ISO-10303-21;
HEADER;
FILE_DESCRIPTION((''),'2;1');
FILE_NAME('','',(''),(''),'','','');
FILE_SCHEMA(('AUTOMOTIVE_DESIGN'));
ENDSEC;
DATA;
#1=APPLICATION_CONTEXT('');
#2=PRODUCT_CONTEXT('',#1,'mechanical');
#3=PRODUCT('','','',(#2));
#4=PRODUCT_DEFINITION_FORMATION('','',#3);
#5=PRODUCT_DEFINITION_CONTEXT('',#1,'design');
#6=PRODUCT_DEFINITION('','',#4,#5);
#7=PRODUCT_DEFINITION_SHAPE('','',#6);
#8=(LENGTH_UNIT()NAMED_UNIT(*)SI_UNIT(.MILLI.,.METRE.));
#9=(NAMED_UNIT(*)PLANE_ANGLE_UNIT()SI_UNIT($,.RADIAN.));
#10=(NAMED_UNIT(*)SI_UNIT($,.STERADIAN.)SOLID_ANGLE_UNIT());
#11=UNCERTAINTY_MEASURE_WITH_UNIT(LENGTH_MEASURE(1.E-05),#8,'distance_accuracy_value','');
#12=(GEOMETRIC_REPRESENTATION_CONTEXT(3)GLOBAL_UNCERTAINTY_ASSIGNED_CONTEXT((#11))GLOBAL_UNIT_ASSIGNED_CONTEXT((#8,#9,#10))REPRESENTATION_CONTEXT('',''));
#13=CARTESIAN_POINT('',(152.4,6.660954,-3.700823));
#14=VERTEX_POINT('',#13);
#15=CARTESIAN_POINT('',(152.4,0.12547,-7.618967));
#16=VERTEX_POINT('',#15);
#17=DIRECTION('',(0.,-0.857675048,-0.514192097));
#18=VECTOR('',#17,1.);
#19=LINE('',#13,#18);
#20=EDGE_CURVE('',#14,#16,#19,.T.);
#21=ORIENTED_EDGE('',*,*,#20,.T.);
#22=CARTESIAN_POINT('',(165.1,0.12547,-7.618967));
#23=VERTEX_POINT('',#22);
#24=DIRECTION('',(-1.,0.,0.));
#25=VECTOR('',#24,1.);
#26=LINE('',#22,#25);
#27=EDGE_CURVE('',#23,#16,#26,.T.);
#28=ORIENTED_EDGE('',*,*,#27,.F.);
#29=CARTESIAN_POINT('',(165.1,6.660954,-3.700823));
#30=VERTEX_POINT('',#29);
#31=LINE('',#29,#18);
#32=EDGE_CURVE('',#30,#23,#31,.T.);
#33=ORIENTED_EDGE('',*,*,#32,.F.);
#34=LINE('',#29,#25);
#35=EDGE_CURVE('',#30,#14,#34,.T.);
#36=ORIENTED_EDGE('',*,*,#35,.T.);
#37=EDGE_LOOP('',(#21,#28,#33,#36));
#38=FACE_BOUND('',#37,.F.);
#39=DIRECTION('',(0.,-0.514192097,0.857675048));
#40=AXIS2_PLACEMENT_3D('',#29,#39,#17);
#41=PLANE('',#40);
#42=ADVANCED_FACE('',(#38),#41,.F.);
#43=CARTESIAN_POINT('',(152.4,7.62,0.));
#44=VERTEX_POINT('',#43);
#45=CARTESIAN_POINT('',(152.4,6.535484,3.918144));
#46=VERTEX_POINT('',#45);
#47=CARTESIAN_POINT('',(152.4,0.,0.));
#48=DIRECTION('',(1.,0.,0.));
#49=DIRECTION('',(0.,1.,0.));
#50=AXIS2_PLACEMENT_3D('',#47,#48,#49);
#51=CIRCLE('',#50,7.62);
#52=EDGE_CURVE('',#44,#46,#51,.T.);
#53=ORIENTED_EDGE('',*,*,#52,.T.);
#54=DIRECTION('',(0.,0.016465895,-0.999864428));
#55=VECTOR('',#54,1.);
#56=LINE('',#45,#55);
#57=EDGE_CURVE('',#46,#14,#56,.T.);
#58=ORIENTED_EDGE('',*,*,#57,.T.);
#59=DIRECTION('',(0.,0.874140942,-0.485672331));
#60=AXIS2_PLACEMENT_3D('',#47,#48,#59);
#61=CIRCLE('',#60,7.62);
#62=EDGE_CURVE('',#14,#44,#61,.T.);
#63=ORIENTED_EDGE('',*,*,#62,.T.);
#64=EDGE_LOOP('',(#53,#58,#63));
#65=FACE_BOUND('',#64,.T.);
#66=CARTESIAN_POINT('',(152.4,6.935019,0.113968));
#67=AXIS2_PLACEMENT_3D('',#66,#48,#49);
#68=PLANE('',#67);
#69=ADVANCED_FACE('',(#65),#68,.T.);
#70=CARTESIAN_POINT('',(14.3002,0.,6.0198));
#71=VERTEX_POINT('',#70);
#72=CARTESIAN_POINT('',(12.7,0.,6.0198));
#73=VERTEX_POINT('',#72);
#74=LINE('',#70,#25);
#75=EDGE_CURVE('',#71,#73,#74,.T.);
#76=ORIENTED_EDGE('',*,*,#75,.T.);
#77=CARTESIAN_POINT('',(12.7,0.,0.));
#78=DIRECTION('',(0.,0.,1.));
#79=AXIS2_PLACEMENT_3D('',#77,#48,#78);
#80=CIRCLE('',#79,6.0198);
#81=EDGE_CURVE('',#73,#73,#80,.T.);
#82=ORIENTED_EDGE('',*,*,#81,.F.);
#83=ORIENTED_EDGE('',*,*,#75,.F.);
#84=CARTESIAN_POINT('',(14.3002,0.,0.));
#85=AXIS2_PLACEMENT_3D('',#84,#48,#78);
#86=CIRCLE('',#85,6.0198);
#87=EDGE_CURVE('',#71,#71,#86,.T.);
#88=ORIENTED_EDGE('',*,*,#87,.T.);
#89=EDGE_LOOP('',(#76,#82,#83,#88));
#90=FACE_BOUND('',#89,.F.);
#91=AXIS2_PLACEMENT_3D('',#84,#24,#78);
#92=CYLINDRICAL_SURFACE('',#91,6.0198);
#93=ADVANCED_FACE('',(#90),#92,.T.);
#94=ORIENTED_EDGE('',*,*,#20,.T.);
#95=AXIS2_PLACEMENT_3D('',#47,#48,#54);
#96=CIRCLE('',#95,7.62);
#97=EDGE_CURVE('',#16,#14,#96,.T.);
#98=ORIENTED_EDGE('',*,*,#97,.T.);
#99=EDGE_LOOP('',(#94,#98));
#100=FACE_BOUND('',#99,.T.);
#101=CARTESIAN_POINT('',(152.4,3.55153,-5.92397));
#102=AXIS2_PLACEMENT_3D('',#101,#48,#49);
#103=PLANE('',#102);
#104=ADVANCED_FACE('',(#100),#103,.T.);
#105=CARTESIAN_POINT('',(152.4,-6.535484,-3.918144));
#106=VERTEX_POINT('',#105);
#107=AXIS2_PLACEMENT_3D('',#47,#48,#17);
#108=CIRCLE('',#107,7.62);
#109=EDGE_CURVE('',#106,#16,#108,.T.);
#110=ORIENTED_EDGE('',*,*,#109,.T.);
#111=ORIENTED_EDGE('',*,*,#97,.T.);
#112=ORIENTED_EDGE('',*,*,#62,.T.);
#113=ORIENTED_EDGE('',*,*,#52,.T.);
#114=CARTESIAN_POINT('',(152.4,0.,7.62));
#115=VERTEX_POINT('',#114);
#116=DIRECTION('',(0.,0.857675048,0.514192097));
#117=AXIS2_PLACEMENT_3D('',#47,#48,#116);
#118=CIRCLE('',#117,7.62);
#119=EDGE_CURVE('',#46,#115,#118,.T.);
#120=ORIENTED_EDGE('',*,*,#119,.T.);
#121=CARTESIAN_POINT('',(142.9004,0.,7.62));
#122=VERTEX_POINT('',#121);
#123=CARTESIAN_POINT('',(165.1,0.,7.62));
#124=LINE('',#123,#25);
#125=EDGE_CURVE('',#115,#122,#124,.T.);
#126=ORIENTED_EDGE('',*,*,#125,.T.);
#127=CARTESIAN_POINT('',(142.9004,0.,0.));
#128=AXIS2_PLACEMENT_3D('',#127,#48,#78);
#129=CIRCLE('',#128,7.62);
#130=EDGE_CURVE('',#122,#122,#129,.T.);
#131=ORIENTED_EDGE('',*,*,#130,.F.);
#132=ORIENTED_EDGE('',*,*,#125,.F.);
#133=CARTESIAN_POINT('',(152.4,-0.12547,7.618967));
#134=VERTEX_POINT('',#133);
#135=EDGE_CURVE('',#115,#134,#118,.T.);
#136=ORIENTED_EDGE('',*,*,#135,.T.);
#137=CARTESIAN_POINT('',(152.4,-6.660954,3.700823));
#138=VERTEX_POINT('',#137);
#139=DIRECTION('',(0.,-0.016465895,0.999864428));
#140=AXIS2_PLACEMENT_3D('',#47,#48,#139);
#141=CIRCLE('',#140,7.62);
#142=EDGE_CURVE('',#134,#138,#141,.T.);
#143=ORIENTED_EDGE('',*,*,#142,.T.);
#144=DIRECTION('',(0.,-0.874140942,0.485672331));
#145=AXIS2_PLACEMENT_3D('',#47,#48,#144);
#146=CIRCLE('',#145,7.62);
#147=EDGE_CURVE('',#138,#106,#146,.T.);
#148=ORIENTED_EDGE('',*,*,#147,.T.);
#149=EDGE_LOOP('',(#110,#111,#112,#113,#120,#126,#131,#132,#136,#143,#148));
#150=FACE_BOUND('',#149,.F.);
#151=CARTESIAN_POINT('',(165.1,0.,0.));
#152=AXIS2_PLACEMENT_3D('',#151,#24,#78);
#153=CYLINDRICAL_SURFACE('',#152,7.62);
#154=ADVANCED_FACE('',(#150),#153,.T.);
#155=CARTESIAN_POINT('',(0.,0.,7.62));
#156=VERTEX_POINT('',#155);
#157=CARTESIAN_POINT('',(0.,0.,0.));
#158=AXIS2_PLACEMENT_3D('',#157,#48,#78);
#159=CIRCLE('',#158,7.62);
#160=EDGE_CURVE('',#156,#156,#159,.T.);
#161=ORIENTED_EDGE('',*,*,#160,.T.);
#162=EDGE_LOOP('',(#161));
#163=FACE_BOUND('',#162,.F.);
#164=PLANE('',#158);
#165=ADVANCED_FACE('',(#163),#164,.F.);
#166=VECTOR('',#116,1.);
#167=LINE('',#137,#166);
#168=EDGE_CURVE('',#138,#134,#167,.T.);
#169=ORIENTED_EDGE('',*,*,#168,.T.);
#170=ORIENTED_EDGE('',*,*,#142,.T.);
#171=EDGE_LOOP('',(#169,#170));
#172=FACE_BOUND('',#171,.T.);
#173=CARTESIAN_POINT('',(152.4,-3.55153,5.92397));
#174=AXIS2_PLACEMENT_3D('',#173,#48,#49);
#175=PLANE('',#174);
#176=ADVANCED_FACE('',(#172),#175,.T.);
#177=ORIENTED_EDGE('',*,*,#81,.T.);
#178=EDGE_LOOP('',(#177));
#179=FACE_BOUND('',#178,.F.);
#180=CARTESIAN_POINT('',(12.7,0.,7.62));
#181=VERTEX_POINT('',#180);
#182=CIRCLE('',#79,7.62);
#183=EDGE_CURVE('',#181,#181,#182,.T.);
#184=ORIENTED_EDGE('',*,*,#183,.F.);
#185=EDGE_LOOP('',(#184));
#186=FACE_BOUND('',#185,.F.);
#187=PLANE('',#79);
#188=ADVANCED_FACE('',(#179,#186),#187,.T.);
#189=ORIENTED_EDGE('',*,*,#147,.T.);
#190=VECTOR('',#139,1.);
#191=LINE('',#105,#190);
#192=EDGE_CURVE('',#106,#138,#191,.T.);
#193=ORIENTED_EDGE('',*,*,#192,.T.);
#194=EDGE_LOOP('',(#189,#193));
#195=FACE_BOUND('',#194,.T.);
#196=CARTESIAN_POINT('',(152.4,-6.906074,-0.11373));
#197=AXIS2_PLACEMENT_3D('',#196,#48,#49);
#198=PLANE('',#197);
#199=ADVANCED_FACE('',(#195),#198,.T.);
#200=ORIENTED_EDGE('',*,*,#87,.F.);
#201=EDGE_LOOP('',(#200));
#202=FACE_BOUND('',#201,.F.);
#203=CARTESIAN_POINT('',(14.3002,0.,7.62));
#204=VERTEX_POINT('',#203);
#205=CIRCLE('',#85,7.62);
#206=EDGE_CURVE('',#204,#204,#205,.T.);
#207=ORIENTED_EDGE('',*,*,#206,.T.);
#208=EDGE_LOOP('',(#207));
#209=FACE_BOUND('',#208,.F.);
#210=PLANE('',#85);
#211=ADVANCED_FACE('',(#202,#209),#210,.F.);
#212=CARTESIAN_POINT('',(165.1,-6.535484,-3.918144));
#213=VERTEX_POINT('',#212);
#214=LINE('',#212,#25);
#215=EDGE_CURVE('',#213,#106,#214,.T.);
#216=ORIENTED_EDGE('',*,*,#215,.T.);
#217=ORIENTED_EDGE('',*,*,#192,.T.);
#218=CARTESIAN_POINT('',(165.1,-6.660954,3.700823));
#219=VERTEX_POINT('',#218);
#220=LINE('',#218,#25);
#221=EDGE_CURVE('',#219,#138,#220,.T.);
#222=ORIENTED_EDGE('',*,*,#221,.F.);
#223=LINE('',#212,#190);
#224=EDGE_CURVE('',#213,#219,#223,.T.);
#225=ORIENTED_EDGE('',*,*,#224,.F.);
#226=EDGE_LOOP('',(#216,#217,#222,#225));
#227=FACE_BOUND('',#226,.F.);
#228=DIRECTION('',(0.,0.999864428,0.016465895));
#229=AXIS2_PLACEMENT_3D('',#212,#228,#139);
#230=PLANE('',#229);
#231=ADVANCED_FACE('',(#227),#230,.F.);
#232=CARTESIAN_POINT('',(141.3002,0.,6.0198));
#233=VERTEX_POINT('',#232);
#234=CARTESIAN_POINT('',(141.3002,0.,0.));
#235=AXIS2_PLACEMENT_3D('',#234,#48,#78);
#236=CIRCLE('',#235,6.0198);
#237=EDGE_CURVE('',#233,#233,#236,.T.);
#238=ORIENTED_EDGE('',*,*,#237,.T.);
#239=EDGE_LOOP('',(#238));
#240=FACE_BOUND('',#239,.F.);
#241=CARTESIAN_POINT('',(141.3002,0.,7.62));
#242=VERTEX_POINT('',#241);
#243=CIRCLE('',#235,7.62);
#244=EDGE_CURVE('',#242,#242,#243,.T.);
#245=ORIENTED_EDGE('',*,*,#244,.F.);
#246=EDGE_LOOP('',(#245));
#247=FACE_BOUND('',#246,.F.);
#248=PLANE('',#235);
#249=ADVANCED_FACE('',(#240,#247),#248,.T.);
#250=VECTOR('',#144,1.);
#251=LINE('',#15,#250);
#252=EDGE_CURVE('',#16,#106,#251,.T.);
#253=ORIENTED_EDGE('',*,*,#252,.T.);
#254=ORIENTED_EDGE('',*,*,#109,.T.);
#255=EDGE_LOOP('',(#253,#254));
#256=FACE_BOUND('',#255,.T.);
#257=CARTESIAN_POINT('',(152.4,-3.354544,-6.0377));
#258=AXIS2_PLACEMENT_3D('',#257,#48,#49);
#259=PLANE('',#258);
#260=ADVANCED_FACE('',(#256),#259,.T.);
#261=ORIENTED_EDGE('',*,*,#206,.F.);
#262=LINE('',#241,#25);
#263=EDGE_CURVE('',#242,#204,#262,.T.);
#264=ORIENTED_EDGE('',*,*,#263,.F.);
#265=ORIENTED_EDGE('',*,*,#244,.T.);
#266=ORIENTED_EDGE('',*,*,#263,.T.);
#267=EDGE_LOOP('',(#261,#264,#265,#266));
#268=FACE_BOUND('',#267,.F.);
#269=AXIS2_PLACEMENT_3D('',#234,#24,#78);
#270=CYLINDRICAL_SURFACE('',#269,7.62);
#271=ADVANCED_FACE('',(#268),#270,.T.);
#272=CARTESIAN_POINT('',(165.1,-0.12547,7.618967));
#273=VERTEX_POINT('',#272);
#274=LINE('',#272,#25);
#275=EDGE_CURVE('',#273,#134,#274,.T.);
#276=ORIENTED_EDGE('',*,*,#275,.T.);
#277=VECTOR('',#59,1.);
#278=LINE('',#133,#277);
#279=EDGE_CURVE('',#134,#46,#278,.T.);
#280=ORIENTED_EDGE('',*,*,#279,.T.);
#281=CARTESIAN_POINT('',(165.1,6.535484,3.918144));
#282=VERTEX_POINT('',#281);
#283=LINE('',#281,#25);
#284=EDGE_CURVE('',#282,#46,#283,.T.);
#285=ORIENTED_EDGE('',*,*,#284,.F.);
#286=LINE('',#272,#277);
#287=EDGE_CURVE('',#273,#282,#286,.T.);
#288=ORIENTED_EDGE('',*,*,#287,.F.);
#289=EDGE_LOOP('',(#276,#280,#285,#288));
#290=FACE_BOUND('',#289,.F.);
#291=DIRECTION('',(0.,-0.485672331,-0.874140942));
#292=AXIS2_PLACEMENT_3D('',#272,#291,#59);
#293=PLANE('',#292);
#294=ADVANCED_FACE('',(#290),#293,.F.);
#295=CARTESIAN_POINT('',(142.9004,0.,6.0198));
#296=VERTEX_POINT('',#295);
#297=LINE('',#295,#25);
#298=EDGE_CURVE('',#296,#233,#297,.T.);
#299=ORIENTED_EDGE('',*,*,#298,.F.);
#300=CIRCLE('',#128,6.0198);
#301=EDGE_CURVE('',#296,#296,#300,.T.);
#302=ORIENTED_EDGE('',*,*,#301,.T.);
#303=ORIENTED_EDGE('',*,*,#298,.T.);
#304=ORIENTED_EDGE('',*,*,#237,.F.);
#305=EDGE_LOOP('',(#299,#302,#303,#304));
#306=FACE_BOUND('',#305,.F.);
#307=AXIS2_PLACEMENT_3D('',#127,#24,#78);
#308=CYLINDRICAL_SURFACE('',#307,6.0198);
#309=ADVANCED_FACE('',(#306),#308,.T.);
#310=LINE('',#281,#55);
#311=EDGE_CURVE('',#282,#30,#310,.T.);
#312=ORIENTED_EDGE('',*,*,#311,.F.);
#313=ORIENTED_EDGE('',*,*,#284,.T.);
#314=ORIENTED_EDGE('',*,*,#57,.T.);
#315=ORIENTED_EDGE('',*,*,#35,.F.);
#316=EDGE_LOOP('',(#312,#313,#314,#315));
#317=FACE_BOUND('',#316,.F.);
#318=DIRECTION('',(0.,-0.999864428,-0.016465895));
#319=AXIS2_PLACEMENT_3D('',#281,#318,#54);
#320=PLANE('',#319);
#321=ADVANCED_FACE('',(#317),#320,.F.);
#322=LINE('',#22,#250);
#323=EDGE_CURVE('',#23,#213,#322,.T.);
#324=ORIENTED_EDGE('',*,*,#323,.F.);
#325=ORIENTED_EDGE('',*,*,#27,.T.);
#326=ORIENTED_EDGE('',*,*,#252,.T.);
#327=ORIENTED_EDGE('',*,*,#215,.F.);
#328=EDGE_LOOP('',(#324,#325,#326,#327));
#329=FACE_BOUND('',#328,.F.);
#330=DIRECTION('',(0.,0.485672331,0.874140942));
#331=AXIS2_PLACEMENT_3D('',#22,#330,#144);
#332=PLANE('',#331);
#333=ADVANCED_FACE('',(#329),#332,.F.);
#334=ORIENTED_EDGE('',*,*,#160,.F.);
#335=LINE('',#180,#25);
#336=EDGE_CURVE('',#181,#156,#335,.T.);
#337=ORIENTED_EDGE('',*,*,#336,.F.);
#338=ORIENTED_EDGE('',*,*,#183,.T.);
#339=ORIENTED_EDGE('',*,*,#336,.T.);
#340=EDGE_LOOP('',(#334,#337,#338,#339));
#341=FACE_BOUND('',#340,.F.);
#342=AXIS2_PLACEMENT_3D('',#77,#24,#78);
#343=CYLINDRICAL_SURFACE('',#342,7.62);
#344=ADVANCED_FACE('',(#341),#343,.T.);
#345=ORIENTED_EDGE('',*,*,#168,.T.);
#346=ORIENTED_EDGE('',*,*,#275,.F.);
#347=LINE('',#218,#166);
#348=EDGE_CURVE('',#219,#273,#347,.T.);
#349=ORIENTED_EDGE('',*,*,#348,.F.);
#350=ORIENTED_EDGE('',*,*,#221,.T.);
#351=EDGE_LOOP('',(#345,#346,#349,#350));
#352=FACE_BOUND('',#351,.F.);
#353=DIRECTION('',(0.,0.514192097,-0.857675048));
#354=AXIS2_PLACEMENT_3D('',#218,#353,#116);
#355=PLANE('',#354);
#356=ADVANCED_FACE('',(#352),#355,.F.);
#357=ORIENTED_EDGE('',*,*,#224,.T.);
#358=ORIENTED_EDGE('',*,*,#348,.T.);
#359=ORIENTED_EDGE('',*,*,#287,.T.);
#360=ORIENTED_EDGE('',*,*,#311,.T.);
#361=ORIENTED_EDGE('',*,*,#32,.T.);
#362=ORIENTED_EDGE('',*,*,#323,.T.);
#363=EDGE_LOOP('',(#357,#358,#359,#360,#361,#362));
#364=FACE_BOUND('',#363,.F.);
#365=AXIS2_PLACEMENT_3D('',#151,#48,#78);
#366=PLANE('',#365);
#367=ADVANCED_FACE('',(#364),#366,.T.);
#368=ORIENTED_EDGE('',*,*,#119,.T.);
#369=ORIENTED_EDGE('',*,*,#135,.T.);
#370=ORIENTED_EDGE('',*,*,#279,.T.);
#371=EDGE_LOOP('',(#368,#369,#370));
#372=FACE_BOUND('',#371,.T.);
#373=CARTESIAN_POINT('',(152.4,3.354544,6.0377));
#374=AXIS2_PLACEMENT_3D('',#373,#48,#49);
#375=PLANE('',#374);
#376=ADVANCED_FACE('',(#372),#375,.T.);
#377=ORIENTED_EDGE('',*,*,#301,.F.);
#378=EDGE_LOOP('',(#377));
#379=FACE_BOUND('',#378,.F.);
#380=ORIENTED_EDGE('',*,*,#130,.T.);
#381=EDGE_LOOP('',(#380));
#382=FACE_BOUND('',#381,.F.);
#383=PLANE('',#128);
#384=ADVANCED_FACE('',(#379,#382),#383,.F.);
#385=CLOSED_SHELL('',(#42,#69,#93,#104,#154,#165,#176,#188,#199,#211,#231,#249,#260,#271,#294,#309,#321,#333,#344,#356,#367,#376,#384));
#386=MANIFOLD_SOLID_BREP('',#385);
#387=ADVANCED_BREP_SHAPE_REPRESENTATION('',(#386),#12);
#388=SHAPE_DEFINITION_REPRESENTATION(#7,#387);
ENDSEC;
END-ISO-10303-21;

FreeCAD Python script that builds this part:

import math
import FreeCAD as App
import Part
import Sketcher
from FreeCAD import Vector
Q = App.Units.Quantity


def add_polygon(sketch, points):
    """Adds a closed chain of lines whose ends are joined by coincident constraints."""
    first, n = sketch.GeometryCount, len(points)
    for a, b in zip(points, points[1:] + points[:1]):
        sketch.addGeometry(Part.LineSegment(App.Vector(*a, 0), App.Vector(*b, 0)), False)
    for i in range(n):
        sketch.addConstraint(Sketcher.Constraint("Coincident", first + i, 2, first + (i + 1) % n, 1))

doc = App.newDocument("Part")
body = doc.addObject("PartDesign::Body", "Body")

# Sketch on XZ plane
sketch1 = doc.addObject("Sketcher::SketchObject", "Sketch")
body.addObject(sketch1)
sketch1.AttachmentSupport = (doc.XZ_Plane, [""])
sketch1.MapMode = "FlatFace"
add_polygon(sketch1, [(0, 7.6), (0, 0), (165.1, 0), (165.1, 7.6), (142.9, 7.6), (142.9, 6), (141.3, 6), (141.3, 7.6), (14.3, 7.6), (14.3, 6), (12.7, 6), (12.7, 7.6)])  # lines 0-11
sketch1.addConstraint([
    Sketcher.Constraint("Vertical", 0),
    Sketcher.Constraint("Horizontal", 1),
    Sketcher.Constraint("Vertical", 2),
    Sketcher.Constraint("Horizontal", 3),
    Sketcher.Constraint("Vertical", 4),
    Sketcher.Constraint("Horizontal", 5),
    Sketcher.Constraint("Vertical", 6),
    Sketcher.Constraint("Horizontal", 7),
    Sketcher.Constraint("Vertical", 8),
    Sketcher.Constraint("Horizontal", 9),
    Sketcher.Constraint("Vertical", 10),
    Sketcher.Constraint("Horizontal", 11),
    Sketcher.Constraint("Coincident", 0, 2, -1, 1),
    Sketcher.Constraint("Horizontal", 3, 2, 6, 2),
    Sketcher.Constraint("Horizontal", 5, 2, 8, 2),
    Sketcher.Constraint("Horizontal", 7, 2, 10, 2),
    Sketcher.Constraint("Equal", 5, 9),
    Sketcher.Constraint("Equal", 9, 4),
    Sketcher.Constraint("DistanceX", 7, 2, 7, 1, Q("5 in")),
    Sketcher.Constraint("DistanceX", 1, 1, 1, 2, Q("6.5 in")),
    Sketcher.Constraint("DistanceX", 11, 2, 11, 1, Q("0.5 in")),
    Sketcher.Constraint("DistanceY", 0, 2, 0, 1, Q("0.3 in")),
    Sketcher.Constraint("DistanceX", 3, 2, 3, 1, Q("0.874 in")),
])
revolution = doc.addObject("PartDesign::Revolution", "Revolution")
body.addObject(revolution)
revolution.Profile = sketch1
revolution.ReferenceAxis = (sketch1, ["H_Axis"])
revolution.Angle = 360

# Sketch on YZ plane
sketch2 = doc.addObject("Sketcher::SketchObject", "Sketch001")
body.addObject(sketch2)
sketch2.AttachmentSupport = (doc.YZ_Plane, [""])
sketch2.MapMode = "FlatFace"
sketch2.AttachmentOffset = App.Placement(Vector(0, 0, 6.5 * 25.4), App.Rotation())
sketch2.addGeometry([
    Part.LineSegment(Vector(-6.7, 3.7, 0), Vector(-0.1, 7.6, 0)),  # 0
    Part.ArcOfCircle(Part.Circle(Vector(0, 0, 0), Vector(0, 0, 1), 7.6), math.radians(91), math.radians(151)),  # 1
    Part.ArcOfCircle(Part.Circle(Vector(0, 0, 0), Vector(0, 0, 1), 7.6), math.radians(-89), math.radians(-29)),  # 2
    Part.LineSegment(Vector(6.7, -3.7, 0), Vector(0.1, -7.6, 0)),  # 3
    Part.ArcOfCircle(Part.Circle(Vector(0, 0, 0), Vector(0, 0, 1), 7.6), math.radians(-149), math.radians(-89)),  # 4
    Part.LineSegment(Vector(0.1, -7.6, 0), Vector(-6.5, -3.9, 0)),  # 5
    Part.LineSegment(Vector(-6.5, -3.9, 0), Vector(-6.7, 3.7, 0)),  # 6
    Part.ArcOfCircle(Part.Circle(Vector(0, 0, 0), Vector(0, 0, 1), 7.6), math.radians(151), math.radians(211)),  # 7
    Part.LineSegment(Vector(-0.1, 7.6, 0), Vector(6.5, 3.9, 0)),  # 8
    Part.ArcOfCircle(Part.Circle(Vector(0, 0, 0), Vector(0, 0, 1), 7.6), math.radians(31), math.radians(91)),  # 9
    Part.ArcOfCircle(Part.Circle(Vector(0, 0, 0), Vector(0, 0, 1), 7.6), math.radians(0), math.radians(31)),  # 10
    Part.LineSegment(Vector(6.5, 3.9, 0), Vector(6.7, -3.7, 0)),  # 11
    Part.ArcOfCircle(Part.Circle(Vector(0, 0, 0), Vector(0, 0, 1), 7.6), math.radians(-29), math.radians(0)),  # 12
], False)
sketch2.addConstraint([
    Sketcher.Constraint("Coincident", 0, 1, 1, 2),
    Sketcher.Constraint("Coincident", 1, 1, 0, 2),
    Sketcher.Constraint("Coincident", 2, 1, 3, 2),
    Sketcher.Constraint("Coincident", 3, 1, 2, 2),
    Sketcher.Constraint("Coincident", 4, 1, 5, 2),
    Sketcher.Constraint("Coincident", 5, 1, 4, 2),
    Sketcher.Constraint("Coincident", 6, 1, 7, 2),
    Sketcher.Constraint("Coincident", 7, 1, 6, 2),
    Sketcher.Constraint("Coincident", 8, 1, 9, 2),
    Sketcher.Constraint("Coincident", 9, 1, 8, 2),
    Sketcher.Constraint("Coincident", 10, 2, 11, 1),
    Sketcher.Constraint("Coincident", 11, 2, 12, 1),
    Sketcher.Constraint("Tangent", 12, 2, 10, 1),
    Sketcher.Constraint("Coincident", 1, 3, -1, 1),
    Sketcher.Constraint("Coincident", 2, 3, -1, 1),
    Sketcher.Constraint("Coincident", 4, 3, -1, 1),
    Sketcher.Constraint("Coincident", 7, 3, -1, 1),
    Sketcher.Constraint("Coincident", 9, 3, -1, 1),
    Sketcher.Constraint("Coincident", 10, 3, -1, 1),
    Sketcher.Constraint("Coincident", 5, 1, 2, 1),
    Sketcher.Constraint("Coincident", 6, 1, 4, 1),
    Sketcher.Constraint("Coincident", 7, 1, 0, 1),
    Sketcher.Constraint("Coincident", 8, 1, 1, 1),
    Sketcher.Constraint("Coincident", 10, 2, 9, 1),
    Sketcher.Constraint("Coincident", 11, 2, 3, 1),
    Sketcher.Constraint("PointOnObject", 12, 2, -1),
    Sketcher.Constraint("Parallel", 0, 3),
    Sketcher.Constraint("Parallel", 5, 8),
    Sketcher.Constraint("Equal", 0, 3),
    Sketcher.Constraint("Equal", 3, 5),
    Sketcher.Constraint("Equal", 5, 6),
    Sketcher.Constraint("Radius", 1, Q("0.3 in")),
    Sketcher.Constraint("DistanceX", 1, 1, -1, 1, 0.12547),
])
pocket1 = doc.addObject("PartDesign::Pocket", "Pocket")
body.addObject(pocket1)
pocket1.Profile = sketch2
pocket1.Length = Q("0.5 in")

doc.recompute()
